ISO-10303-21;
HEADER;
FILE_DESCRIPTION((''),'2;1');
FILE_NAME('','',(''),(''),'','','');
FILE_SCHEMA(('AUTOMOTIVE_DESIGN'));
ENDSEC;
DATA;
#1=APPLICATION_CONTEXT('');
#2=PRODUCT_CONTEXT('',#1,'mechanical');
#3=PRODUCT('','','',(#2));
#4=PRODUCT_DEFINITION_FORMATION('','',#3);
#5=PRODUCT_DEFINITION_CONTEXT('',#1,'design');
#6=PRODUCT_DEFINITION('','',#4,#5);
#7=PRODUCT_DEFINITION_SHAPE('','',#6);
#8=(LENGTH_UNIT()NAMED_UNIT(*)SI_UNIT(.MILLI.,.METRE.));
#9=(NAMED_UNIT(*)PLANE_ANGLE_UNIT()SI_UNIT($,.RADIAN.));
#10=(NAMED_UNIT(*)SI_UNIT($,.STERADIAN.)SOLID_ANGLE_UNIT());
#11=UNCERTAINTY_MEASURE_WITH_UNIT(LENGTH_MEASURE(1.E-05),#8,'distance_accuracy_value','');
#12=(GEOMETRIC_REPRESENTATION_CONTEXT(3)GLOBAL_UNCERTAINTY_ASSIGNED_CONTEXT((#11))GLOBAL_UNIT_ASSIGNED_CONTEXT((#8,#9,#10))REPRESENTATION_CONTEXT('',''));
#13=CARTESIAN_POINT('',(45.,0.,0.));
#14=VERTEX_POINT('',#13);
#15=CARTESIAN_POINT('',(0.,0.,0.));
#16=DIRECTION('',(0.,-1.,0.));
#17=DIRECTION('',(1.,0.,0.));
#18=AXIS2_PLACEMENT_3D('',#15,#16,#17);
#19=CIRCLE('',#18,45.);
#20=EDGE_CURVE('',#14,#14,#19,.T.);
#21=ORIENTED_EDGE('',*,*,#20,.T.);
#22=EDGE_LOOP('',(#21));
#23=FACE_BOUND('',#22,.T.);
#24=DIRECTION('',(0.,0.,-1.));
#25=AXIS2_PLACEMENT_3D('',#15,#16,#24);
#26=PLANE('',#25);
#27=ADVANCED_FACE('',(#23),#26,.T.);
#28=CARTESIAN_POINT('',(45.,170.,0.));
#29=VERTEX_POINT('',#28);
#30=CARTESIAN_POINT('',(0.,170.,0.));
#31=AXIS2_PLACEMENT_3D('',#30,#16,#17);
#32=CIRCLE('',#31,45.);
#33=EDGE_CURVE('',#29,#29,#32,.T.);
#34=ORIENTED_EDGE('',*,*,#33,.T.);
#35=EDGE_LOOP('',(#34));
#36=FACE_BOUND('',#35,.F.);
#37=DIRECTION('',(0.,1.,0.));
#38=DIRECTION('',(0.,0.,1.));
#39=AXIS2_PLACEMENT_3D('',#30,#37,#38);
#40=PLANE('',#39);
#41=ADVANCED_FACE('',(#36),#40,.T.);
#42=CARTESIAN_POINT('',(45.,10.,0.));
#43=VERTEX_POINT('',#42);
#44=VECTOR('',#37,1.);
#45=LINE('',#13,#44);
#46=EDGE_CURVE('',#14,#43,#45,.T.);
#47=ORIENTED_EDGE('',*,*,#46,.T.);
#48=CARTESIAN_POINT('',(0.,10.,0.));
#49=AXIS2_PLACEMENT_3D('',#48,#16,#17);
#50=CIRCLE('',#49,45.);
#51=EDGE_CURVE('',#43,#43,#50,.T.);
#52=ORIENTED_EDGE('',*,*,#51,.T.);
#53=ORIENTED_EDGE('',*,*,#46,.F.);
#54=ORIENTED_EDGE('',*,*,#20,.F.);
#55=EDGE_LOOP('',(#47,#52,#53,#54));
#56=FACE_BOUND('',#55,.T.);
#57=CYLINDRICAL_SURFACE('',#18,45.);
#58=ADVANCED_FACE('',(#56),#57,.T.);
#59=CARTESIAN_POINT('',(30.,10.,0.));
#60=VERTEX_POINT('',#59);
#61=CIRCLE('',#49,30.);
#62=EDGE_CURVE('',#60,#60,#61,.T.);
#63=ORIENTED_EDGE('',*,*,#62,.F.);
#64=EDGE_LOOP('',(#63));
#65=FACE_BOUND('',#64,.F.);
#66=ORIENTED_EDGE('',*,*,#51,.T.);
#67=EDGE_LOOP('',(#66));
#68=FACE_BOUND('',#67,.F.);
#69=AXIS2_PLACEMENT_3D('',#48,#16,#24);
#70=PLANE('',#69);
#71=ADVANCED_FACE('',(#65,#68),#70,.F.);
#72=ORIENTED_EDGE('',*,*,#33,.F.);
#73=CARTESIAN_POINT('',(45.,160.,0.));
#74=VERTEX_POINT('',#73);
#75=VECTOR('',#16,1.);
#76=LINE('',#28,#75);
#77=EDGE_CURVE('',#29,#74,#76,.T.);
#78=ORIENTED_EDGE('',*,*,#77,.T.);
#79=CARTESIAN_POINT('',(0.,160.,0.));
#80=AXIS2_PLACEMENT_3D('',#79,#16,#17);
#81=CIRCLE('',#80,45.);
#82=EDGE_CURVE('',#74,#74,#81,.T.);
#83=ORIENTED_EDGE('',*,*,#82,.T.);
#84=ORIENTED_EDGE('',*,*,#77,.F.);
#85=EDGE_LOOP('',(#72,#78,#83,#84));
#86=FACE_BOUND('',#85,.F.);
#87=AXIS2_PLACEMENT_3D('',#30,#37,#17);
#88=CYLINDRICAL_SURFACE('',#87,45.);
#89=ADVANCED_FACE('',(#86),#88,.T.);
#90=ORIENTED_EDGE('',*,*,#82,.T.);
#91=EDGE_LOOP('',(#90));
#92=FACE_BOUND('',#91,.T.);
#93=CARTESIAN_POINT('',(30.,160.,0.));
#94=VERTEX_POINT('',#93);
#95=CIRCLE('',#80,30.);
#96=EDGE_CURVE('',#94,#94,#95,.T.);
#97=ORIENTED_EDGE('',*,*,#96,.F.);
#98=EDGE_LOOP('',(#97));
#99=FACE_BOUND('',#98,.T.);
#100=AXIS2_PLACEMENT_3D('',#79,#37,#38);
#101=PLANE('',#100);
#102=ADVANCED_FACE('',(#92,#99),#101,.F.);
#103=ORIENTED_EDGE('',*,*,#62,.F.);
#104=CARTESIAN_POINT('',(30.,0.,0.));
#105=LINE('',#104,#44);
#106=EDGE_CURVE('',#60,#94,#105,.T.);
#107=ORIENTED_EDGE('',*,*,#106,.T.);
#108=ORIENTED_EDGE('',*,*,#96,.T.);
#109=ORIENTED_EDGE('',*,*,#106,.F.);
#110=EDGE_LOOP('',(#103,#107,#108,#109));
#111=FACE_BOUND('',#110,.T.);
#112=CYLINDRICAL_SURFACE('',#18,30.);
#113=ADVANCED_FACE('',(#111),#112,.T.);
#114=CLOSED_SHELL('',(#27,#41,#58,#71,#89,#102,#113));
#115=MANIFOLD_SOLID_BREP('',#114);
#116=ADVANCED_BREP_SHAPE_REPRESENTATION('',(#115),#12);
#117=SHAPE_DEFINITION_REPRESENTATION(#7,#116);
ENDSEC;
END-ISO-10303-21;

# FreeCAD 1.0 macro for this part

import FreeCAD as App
import Part
import Sketcher

doc = App.newDocument("Part")
params = doc.addObject("Spreadsheet::Sheet", "Params")
for row, (alias, value) in enumerate([
    ("sketch1_diameter", "60 mm"),
    ("pad1_length", "170 mm"),
    ("sketch2_diameter", "90 mm"),
    ("pad2_length", "10 mm"),
], start=1):
    params.set(f"A{row}", alias)
    params.set(f"B{row}", "=" + value)
    params.setAlias(f"B{row}", alias)

body = doc.addObject("PartDesign::Body", "Body")

sketch1 = body.newObject("Sketcher::SketchObject", "Sketch")
sketch1.AttachmentSupport = (doc.getObject("XZ_Plane"), [""])
sketch1.MapMode = "FlatFace"
sketch1.addGeometry(Part.Circle(App.Vector(0, 0, 0), App.Vector(0, 0, 1), 30), False)
sketch1.addConstraint([
    Sketcher.Constraint("Coincident", 0, 3, -1, 1),
    Sketcher.Constraint("Diameter", 0, 60.0),
])
sketch1.setExpression("Constraints[1]", "Params.sketch1_diameter")
pad1 = body.newObject("PartDesign::Pad", "Pad")
pad1.Profile = sketch1
pad1.setExpression("Length", "Params.pad1_length")
pad1.Reversed = True

sketch2 = body.newObject("Sketcher::SketchObject", "Sketch001")
sketch2.AttachmentSupport = (doc.getObject("XZ_Plane"), [""])
sketch2.MapMode = "FlatFace"
sketch2.addGeometry(Part.Circle(App.Vector(0, 0, 0), App.Vector(0, 0, 1), 45), False)
sketch2.addConstraint([
    Sketcher.Constraint("Coincident", 0, 3, -1, 1),
    Sketcher.Constraint("Diameter", 0, 90.0),
])
sketch2.setExpression("Constraints[1]", "Params.sketch2_diameter")
pad2 = body.newObject("PartDesign::Pad", "Pad001")
pad2.Profile = sketch2
pad2.setExpression("Length", "Params.pad2_length")
pad2.Reversed = True
doc.recompute()

datumplane = body.newObject("PartDesign::Plane", "DatumPlane")
datumplane.AttachmentSupport = (doc.getObject("XZ_Plane"), [""])
datumplane.MapMode = "FlatFace"
datumplane.AttachmentOffset = App.Placement(App.Vector(0, 0, -85), App.Rotation())
mirrored = body.newObject("PartDesign::Mirrored", "Mirrored")
mirrored.Originals = [pad2]
mirrored.MirrorPlane = (datumplane, [""])
body.Tip = mirrored

doc.recompute()
